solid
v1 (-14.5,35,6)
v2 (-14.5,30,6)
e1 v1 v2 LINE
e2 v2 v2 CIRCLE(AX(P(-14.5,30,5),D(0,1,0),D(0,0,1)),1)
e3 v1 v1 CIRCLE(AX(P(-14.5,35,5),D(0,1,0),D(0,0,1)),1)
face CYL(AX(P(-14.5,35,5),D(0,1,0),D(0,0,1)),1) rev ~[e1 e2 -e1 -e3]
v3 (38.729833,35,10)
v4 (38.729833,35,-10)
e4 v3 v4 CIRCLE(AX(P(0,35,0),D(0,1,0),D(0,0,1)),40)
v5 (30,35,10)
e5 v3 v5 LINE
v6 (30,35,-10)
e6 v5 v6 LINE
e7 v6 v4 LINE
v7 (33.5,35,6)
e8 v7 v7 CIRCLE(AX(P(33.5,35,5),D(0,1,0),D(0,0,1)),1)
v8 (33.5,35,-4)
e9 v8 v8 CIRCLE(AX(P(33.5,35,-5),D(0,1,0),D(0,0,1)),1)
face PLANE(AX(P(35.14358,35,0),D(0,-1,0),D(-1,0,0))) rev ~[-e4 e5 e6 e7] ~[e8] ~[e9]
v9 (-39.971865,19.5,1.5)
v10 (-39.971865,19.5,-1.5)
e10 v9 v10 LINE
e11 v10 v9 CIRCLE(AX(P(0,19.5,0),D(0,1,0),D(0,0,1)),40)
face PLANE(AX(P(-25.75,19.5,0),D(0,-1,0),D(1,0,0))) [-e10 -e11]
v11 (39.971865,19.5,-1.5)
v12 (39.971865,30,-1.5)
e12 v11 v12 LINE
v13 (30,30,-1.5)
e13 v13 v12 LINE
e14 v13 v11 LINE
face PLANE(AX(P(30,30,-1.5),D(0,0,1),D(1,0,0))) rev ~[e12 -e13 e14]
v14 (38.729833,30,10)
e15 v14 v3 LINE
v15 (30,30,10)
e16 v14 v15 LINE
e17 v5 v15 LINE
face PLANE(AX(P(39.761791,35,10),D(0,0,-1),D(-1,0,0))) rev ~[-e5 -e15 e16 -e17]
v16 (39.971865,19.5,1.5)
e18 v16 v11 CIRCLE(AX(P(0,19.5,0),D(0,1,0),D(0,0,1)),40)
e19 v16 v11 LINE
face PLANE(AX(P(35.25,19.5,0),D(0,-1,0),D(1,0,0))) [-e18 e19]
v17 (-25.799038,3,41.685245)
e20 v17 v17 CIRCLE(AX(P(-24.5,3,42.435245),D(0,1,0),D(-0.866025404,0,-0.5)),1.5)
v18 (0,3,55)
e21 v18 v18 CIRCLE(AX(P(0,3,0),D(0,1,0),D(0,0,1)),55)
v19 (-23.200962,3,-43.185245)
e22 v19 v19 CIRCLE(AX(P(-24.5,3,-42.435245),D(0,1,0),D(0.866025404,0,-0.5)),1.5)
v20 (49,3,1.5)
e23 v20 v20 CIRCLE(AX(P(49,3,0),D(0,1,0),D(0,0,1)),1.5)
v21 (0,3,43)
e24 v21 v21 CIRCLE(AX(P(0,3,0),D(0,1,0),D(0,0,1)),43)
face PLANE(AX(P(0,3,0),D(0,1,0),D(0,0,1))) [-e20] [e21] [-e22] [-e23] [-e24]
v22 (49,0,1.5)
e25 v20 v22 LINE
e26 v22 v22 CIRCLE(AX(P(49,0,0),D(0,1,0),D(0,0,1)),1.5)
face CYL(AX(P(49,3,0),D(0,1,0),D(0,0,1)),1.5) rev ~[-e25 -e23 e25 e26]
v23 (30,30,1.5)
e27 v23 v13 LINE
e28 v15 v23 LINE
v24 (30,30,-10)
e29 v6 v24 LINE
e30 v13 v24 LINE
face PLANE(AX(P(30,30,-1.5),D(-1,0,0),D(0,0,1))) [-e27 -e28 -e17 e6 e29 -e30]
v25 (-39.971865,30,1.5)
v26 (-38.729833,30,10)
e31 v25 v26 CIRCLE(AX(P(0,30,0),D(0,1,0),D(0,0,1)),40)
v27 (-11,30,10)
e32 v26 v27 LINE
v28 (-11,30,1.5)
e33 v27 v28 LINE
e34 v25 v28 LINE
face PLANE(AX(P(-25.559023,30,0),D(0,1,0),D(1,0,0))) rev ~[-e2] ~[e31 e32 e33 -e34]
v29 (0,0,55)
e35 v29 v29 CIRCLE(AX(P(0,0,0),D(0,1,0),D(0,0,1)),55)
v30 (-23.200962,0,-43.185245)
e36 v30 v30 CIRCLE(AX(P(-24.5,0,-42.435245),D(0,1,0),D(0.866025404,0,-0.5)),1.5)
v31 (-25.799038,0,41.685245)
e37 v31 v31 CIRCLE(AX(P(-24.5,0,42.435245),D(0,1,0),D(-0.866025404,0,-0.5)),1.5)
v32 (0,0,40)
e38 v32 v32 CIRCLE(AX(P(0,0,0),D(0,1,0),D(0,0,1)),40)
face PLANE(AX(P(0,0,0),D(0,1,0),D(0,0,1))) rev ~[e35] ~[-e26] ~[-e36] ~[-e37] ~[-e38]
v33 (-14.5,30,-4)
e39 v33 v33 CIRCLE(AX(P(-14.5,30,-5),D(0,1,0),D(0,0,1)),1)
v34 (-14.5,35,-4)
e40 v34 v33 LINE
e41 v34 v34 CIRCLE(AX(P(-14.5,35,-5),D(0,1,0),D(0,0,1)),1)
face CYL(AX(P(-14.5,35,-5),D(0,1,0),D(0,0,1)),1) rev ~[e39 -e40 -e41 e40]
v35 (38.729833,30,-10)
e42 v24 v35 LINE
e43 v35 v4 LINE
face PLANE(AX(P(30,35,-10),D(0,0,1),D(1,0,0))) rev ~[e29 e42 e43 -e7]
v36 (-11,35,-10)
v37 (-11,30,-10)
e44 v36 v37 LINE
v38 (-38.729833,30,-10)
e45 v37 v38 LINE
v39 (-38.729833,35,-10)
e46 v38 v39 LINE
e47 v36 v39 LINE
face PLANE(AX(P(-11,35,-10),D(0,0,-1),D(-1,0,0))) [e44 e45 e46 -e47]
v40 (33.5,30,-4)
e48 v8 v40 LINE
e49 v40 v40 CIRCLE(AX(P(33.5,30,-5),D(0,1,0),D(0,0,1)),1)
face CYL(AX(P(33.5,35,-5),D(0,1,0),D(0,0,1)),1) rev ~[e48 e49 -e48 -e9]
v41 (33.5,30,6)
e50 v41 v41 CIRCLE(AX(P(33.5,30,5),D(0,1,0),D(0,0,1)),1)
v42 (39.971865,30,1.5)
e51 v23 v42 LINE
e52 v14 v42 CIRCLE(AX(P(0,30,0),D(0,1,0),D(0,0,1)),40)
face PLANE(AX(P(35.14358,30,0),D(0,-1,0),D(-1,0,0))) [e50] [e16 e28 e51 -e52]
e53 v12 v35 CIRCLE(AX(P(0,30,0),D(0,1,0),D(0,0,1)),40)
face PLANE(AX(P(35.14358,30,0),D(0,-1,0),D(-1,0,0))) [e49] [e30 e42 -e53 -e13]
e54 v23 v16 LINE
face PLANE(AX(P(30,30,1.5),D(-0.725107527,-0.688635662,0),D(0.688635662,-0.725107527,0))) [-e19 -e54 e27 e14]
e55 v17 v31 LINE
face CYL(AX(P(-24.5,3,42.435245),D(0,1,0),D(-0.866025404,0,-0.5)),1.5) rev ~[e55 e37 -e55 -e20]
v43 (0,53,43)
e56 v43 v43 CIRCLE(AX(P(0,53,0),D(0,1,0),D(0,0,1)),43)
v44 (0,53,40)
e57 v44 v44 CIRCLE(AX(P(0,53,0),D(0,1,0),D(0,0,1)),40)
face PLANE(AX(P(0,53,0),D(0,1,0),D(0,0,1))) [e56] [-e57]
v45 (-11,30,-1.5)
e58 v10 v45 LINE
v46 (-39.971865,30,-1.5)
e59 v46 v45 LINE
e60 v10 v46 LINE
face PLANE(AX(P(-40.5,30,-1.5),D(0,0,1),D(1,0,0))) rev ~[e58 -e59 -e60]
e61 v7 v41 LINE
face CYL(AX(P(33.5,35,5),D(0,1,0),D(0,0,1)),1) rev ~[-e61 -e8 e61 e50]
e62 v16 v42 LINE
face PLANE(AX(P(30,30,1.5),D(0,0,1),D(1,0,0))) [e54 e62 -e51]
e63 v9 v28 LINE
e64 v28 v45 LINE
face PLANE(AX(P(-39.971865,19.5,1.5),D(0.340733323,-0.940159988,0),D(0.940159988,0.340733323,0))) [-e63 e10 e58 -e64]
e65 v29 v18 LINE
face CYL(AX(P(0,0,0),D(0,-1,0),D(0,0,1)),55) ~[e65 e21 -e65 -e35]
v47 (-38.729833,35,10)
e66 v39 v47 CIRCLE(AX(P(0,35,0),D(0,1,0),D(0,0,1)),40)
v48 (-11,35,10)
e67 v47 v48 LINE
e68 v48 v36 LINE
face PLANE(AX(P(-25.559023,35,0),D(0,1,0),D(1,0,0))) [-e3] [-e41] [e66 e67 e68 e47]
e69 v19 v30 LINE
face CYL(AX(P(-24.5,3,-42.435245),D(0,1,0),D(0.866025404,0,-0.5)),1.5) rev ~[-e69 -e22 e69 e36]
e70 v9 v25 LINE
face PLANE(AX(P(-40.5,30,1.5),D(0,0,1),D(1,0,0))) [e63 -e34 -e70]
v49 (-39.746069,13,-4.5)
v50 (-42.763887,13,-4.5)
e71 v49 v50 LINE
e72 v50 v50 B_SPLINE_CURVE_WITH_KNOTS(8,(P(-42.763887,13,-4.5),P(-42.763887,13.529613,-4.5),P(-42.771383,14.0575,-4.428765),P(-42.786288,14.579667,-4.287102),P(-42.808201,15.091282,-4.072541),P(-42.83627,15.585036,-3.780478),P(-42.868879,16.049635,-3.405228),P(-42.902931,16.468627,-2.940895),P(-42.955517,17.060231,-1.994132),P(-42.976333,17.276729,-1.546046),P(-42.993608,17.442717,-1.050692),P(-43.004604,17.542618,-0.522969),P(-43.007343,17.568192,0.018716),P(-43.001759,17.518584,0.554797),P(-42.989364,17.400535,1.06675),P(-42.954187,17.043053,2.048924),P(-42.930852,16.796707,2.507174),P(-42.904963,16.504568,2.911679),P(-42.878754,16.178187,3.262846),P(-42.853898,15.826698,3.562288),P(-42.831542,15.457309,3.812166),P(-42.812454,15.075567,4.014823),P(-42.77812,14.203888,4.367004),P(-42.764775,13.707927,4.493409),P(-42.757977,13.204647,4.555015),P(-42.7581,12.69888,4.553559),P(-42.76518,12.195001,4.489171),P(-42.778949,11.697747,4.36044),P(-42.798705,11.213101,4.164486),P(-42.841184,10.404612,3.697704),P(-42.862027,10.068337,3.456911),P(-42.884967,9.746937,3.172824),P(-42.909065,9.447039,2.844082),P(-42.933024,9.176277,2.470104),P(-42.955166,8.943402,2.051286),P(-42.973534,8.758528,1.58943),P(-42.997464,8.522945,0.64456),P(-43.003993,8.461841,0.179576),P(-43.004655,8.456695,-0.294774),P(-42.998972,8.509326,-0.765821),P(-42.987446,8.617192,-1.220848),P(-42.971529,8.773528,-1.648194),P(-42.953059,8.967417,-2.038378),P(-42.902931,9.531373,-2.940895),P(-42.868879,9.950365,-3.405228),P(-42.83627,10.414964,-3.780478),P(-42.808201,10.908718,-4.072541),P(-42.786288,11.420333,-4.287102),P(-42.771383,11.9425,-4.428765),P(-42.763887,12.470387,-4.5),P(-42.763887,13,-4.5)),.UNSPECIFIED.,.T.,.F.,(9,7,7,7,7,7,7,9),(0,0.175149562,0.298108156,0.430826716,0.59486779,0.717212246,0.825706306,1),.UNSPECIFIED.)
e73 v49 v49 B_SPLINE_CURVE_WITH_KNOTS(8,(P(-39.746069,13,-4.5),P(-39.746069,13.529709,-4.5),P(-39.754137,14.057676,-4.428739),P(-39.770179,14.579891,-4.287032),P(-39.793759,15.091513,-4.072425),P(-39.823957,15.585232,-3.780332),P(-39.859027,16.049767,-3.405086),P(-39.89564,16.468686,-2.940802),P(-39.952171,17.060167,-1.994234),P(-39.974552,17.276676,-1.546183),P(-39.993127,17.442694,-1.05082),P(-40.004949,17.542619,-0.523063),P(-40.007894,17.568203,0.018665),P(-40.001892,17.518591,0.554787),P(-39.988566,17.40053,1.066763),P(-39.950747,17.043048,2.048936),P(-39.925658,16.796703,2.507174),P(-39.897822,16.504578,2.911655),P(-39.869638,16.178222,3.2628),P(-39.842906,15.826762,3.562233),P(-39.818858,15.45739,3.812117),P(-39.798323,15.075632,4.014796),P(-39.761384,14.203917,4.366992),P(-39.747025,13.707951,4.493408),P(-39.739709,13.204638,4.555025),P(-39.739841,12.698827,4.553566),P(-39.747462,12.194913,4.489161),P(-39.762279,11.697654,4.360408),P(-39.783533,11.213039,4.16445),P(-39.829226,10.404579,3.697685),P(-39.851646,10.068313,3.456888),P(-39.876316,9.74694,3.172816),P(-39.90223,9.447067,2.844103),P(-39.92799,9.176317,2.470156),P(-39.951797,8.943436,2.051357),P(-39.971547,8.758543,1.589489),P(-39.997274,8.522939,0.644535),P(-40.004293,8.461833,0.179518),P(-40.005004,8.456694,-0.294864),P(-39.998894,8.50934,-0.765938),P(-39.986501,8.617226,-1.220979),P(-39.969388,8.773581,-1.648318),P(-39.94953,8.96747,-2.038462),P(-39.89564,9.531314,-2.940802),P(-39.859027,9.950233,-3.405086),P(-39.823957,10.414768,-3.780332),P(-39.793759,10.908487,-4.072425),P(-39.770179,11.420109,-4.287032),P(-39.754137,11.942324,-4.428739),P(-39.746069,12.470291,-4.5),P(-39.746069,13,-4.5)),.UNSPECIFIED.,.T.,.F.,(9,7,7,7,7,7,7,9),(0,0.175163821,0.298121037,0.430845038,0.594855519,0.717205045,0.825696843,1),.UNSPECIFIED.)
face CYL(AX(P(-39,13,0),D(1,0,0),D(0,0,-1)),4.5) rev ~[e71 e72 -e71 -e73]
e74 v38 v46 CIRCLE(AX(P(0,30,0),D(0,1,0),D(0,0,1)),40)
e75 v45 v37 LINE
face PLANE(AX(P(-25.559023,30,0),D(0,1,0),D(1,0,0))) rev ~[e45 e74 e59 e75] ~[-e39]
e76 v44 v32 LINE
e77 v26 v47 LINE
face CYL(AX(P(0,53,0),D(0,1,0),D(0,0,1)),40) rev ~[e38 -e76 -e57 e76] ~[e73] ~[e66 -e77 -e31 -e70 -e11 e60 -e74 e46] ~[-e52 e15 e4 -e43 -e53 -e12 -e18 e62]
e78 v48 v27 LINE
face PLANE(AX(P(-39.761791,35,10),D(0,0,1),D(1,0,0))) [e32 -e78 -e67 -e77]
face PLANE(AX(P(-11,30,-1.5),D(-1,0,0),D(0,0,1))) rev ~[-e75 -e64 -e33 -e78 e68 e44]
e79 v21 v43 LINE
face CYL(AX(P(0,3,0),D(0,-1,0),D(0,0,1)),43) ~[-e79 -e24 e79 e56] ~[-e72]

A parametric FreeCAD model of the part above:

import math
import FreeCAD as App
import Part
import Sketcher
Q = App.Units.Quantity

doc = App.newDocument("Part")
body = doc.addObject("PartDesign::Body", "Body")

sketch1 = body.newObject("Sketcher::SketchObject", "Sketch")
sketch1.AttachmentSupport = (doc.getObject("XZ_Plane"), [""])
sketch1.MapMode = "FlatFace"
sketch1.addGeometry(Part.Circle(App.Vector(0, 0, 0), App.Vector(0, 0, 1), 55), False)
sketch1.addConstraint(Sketcher.Constraint("Coincident", 0, 3, -1, 1))
sketch1.addConstraint(Sketcher.Constraint("Diameter", 0, Q("110 mm")))
pad1 = body.newObject("PartDesign::Pad", "Pad")
pad1.Profile = sketch1
pad1.Length = 3
pad1.Reversed = True

sketch2 = body.newObject("Sketcher::SketchObject", "Sketch001")
sketch2.AttachmentSupport = (doc.getObject("XZ_Plane"), [""])
sketch2.MapMode = "FlatFace"
sketch2.AttachmentOffset = App.Placement(App.Vector(0, 0, -3), App.Rotation())
sketch2.addGeometry(Part.Circle(App.Vector(0, 0, 0), App.Vector(0, 0, 1), 43), False)
sketch2.addConstraint(Sketcher.Constraint("Coincident", 0, 3, -1, 1))
sketch2.addConstraint(Sketcher.Constraint("Diameter", 0, Q("86 mm")))
pad2 = body.newObject("PartDesign::Pad", "Pad001")
pad2.Profile = sketch2
pad2.Length = 50
pad2.Reversed = True

sketch3 = body.newObject("Sketcher::SketchObject", "Sketch002")
sketch3.AttachmentSupport = (doc.getObject("XZ_Plane"), [""])
sketch3.MapMode = "FlatFace"
sketch3.AttachmentOffset = App.Placement(App.Vector(0, 0, -53), App.Rotation())
sketch3.addGeometry(Part.Circle(App.Vector(0, 0, 0), App.Vector(0, 0, 1), 40), False)
sketch3.addConstraint(Sketcher.Constraint("Coincident", 0, 3, -1, 1))
sketch3.addConstraint(Sketcher.Constraint("Diameter", 0, Q("80 mm")))
pocket1 = body.newObject("PartDesign::Pocket", "Pocket")
pocket1.Profile = sketch3
pocket1.Length = 66
pocket1.Reversed = True

sketch4 = body.newObject("Sketcher::SketchObject", "Sketch003")
sketch4.AttachmentSupport = (doc.getObject("YZ_Plane"), [""])
sketch4.MapMode = "FlatFace"
sketch4.AttachmentOffset = App.Placement(App.Vector(0, 0, -39), App.Rotation())
sketch4.addGeometry(Part.Circle(App.Vector(13, 0, 0), App.Vector(0, 0, 1), 4.5), False)
sketch4.addConstraint(Sketcher.Constraint("PointOnObject", 0, 3, -1))
sketch4.addConstraint(Sketcher.Constraint("Diameter", 0, Q("9 mm")))
sketch4.addConstraint(Sketcher.Constraint("DistanceX", -1, 1, 0, 3, Q("13 mm")))
pocket2 = body.newObject("PartDesign::Pocket", "Pocket001")
pocket2.Profile = sketch4
pocket2.Length = 9

sketch5 = body.newObject("Sketcher::SketchObject", "Sketch004")
sketch5.AttachmentSupport = (doc.getObject("XZ_Plane"), [""])
sketch5.MapMode = "FlatFace"
sketch5.AttachmentOffset = App.Placement(App.Vector(0, 0, -35), App.Rotation())
sketch5.addGeometry(Part.LineSegment(App.Vector(-11, -10, 0), App.Vector(-40, -10, 0)), False)
sketch5.addGeometry(Part.ArcOfCircle(Part.Circle(App.Vector(0, 0, 0), App.Vector(0, 0, 1), 41), math.radians(166), math.radians(194)), False)
sketch5.addGeometry(Part.LineSegment(App.Vector(-40, 10, 0), App.Vector(-11, 10, 0)), False)
sketch5.addGeometry(Part.LineSegment(App.Vector(-11, 10, 0), App.Vector(-11, -10, 0)), False)
sketch5.addGeometry(Part.LineSegment(App.Vector(40, -10, 0), App.Vector(30, -10, 0)), False)
sketch5.addGeometry(Part.LineSegment(App.Vector(30, -10, 0), App.Vector(30, 10, 0)), False)
sketch5.addGeometry(Part.LineSegment(App.Vector(30, 10, 0), App.Vector(40, 10, 0)), False)
sketch5.addGeometry(Part.ArcOfCircle(Part.Circle(App.Vector(0, 0, 0), App.Vector(0, 0, 1), 41), math.radians(-14), math.radians(14)), False)
sketch5.addConstraint(Sketcher.Constraint("Coincident", 0, 2, 1, 2))
sketch5.addConstraint(Sketcher.Constraint("Coincident", 1, 1, 2, 1))
sketch5.addConstraint(Sketcher.Constraint("Coincident", 2, 2, 3, 1))
sketch5.addConstraint(Sketcher.Constraint("Coincident", 3, 2, 0, 1))
sketch5.addConstraint(Sketcher.Constraint("Coincident", 4, 2, 5, 1))
sketch5.addConstraint(Sketcher.Constraint("Coincident", 5, 2, 6, 1))
sketch5.addConstraint(Sketcher.Constraint("Coincident", 6, 2, 7, 2))
sketch5.addConstraint(Sketcher.Constraint("Coincident", 7, 1, 4, 1))
sketch5.addConstraint(Sketcher.Constraint("Horizontal", 0))
sketch5.addConstraint(Sketcher.Constraint("Horizontal", 2))
sketch5.addConstraint(Sketcher.Constraint("Vertical", 3))
sketch5.addConstraint(Sketcher.Constraint("Horizontal", 4))
sketch5.addConstraint(Sketcher.Constraint("Vertical", 5))
sketch5.addConstraint(Sketcher.Constraint("Horizontal", 6))
sketch5.addConstraint(Sketcher.Constraint("Coincident", 1, 3, -1, 1))
sketch5.addConstraint(Sketcher.Constraint("Coincident", 7, 3, -1, 1))
sketch5.addConstraint(Sketcher.Constraint("Equal", 1, 7))
sketch5.addConstraint(Sketcher.Constraint("Horizontal", 3, 2, 4, 2))
sketch5.addConstraint(Sketcher.Constraint("Horizontal", 2, 2, 5, 2))
sketch5.addConstraint(Sketcher.Constraint("Vertical", 0, 2, 1, 1))
sketch5.addConstraint(Sketcher.Constraint("Radius", 1, Q("41 mm")))
sketch5.addConstraint(Sketcher.Constraint("DistanceY", 3, 2, 3, 1, Q("20 mm")))
sketch5.addConstraint(Sketcher.Constraint("DistanceX", 2, 2, -1, 1, Q("11 mm")))
sketch5.addConstraint(Sketcher.Constraint("DistanceX", -1, 1, 4, 2, Q("30 mm")))
pad3 = body.newObject("PartDesign::Pad", "Pad002")
pad3.Profile = sketch5
pad3.Length = 5

sketch6 = body.newObject("Sketcher::SketchObject", "Sketch005")
sketch6.AttachmentSupport = (doc.getObject("XZ_Plane"), [""])
sketch6.MapMode = "FlatFace"
sketch6.AttachmentOffset = App.Placement(App.Vector(0, 0, -30), App.Rotation())
sketch6.addGeometry(Part.LineSegment(App.Vector(30, 1.5, 0), App.Vector(30, -1.5, 0)), False)
sketch6.addGeometry(Part.LineSegment(App.Vector(30, -1.5, 0), App.Vector(40.5, -1.5, 0)), False)
sketch6.addGeometry(Part.LineSegment(App.Vector(40.5, -1.5, 0), App.Vector(40.5, 1.5, 0)), False)
sketch6.addGeometry(Part.LineSegment(App.Vector(40.5, 1.5, 0), App.Vector(30, 1.5, 0)), False)
sketch6.addConstraint(Sketcher.Constraint("Coincident", 0, 2, 1, 1))
sketch6.addConstraint(Sketcher.Constraint("Coincident", 1, 2, 2, 1))
sketch6.addConstraint(Sketcher.Constraint("Coincident", 2, 2, 3, 1))
sketch6.addConstraint(Sketcher.Constraint("Coincident", 3, 2, 0, 1))
sketch6.addConstraint(Sketcher.Constraint("Vertical", 0))
sketch6.addConstraint(Sketcher.Constraint("Horizontal", 1))
sketch6.addConstraint(Sketcher.Constraint("Vertical", 2))
sketch6.addConstraint(Sketcher.Constraint("Horizontal", 3))
sketch6.addConstraint(Sketcher.Constraint("DistanceY", 0, 2, 0, 1, Q("3 mm")))
sketch6.addConstraint(Sketcher.Constraint("DistanceX", 1, 1, 1, 2, Q("10.5 mm")))
sketch6.addConstraint(Sketcher.Constraint("DistanceX", -1, 1, 0, 2, Q("30 mm")))
sketch6.addConstraint(Sketcher.Constraint("DistanceY", 0, 2, -1, 1, Q("1.5 mm")))
pad4 = body.newObject("PartDesign::Pad", "Pad003")
pad4.Profile = sketch6
pad4.Length = 10.5

sketch7 = body.newObject("Sketcher::SketchObject", "Sketch006")
sketch7.AttachmentSupport = (doc.getObject("XY_Plane"), [""])
sketch7.MapMode = "FlatFace"
sketch7.AttachmentOffset = App.Placement(App.Vector(0, 0, 1.5), App.Rotation())
sketch7.addGeometry(Part.LineSegment(App.Vector(40, 20, 0), App.Vector(30, 30, 0)), False)
sketch7.addGeometry(Part.LineSegment(App.Vector(30, 30, 0), App.Vector(30, 20, 0)), False)
sketch7.addGeometry(Part.LineSegment(App.Vector(30, 20, 0), App.Vector(40, 20, 0)), False)
sketch7.addConstraint(Sketcher.Constraint("Coincident", 0, 2, 1, 1))
sketch7.addConstraint(Sketcher.Constraint("Coincident", 1, 2, 2, 1))
sketch7.addConstraint(Sketcher.Constraint("Coincident", 2, 2, 0, 1))
sketch7.addConstraint(Sketcher.Constraint("Vertical", 1))
sketch7.addConstraint(Sketcher.Constraint("Horizontal", 2))
sketch7.addConstraint(Sketcher.Constraint("DistanceY", 1, 2, 1, 1, Q("10.5 mm")))
sketch7.addConstraint(Sketcher.Constraint("DistanceX", -1, 1, 0, 2, Q("30 mm")))
sketch7.addConstraint(Sketcher.Constraint("DistanceY", -1, 1, 0, 2, Q("30 mm")))
sketch7.addConstraint(Sketcher.Constraint("Distance", 0, Q("14.480611 mm")))
pocket3 = body.newObject("PartDesign::Pocket", "Pocket002")
pocket3.Profile = sketch7
pocket3.Length = 3

sketch8 = body.newObject("Sketcher::SketchObject", "Sketch007")
sketch8.AttachmentSupport = (doc.getObject("XZ_Plane"), [""])
sketch8.MapMode = "FlatFace"
sketch8.AttachmentOffset = App.Placement(App.Vector(0, 0, -30), App.Rotation())
sketch8.addGeometry(Part.LineSegment(App.Vector(-40.5, 1.5, 0), App.Vector(-40.5, -1.5, 0)), False)
sketch8.addGeometry(Part.LineSegment(App.Vector(-40.5, -1.5, 0), App.Vector(-11, -1.5, 0)), False)
sketch8.addGeometry(Part.LineSegment(App.Vector(-11, -1.5, 0), App.Vector(-11, 1.5, 0)), False)
sketch8.addGeometry(Part.LineSegment(App.Vector(-11, 1.5, 0), App.Vector(-40.5, 1.5, 0)), False)
sketch8.addConstraint(Sketcher.Constraint("Coincident", 0, 2, 1, 1))
sketch8.addConstraint(Sketcher.Constraint("Coincident", 1, 2, 2, 1))
sketch8.addConstraint(Sketcher.Constraint("Coincident", 2, 2, 3, 1))
sketch8.addConstraint(Sketcher.Constraint("Coincident", 3, 2, 0, 1))
sketch8.addConstraint(Sketcher.Constraint("Vertical", 0))
sketch8.addConstraint(Sketcher.Constraint("Horizontal", 1))
sketch8.addConstraint(Sketcher.Constraint("Vertical", 2))
sketch8.addConstraint(Sketcher.Constraint("Horizontal", 3))
sketch8.addConstraint(Sketcher.Constraint("DistanceY", 0, 2, 0, 1, Q("3 mm")))
sketch8.addConstraint(Sketcher.Constraint("DistanceX", 1, 1, 1, 2, Q("29.5 mm")))
sketch8.addConstraint(Sketcher.Constraint("DistanceX", 1, 2, -1, 1, Q("11 mm")))
sketch8.addConstraint(Sketcher.Constraint("DistanceY", 0, 2, -1, 1, Q("1.5 mm")))
pad5 = body.newObject("PartDesign::Pad", "Pad004")
pad5.Profile = sketch8
pad5.Length = 10.5

sketch9 = body.newObject("Sketcher::SketchObject", "Sketch008")
sketch9.AttachmentSupport = (doc.getObject("XY_Plane"), [""])
sketch9.MapMode = "FlatFace"
sketch9.AttachmentOffset = App.Placement(App.Vector(0, 0, 1.5), App.Rotation())
sketch9.addGeometry(Part.LineSegment(App.Vector(-11, 30, 0), App.Vector(-40, 20, 0)), False)
sketch9.addGeometry(Part.LineSegment(App.Vector(-40, 20, 0), App.Vector(-11, 20, 0)), False)
sketch9.addGeometry(Part.LineSegment(App.Vector(-11, 20, 0), App.Vector(-11, 30, 0)), False)
sketch9.addConstraint(Sketcher.Constraint("Coincident", 0, 2, 1, 1))
sketch9.addConstraint(Sketcher.Constraint("Coincident", 1, 2, 2, 1))
sketch9.addConstraint(Sketcher.Constraint("Coincident", 2, 2, 0, 1))
sketch9.addConstraint(Sketcher.Constraint("Horizontal", 1))
sketch9.addConstraint(Sketcher.Constraint("Vertical", 2))
sketch9.addConstraint(Sketcher.Constraint("DistanceY", 2, 1, 2, 2, Q("10.5 mm")))
sketch9.addConstraint(Sketcher.Constraint("DistanceX", 1, 2, -1, 1, Q("11 mm")))
sketch9.addConstraint(Sketcher.Constraint("DistanceY", -1, 1, 2, 2, Q("30 mm")))
sketch9.addConstraint(Sketcher.Constraint("Distance", 0, Q("30.815888 mm")))
pocket4 = body.newObject("PartDesign::Pocket", "Pocket003")
pocket4.Profile = sketch9
pocket4.Length = 3

sketch10 = body.newObject("Sketcher::SketchObject", "Sketch009")
sketch10.AttachmentSupport = (doc.getObject("XZ_Plane"), [""])
sketch10.MapMode = "FlatFace"
sketch10.AttachmentOffset = App.Placement(App.Vector(0, 0, -3), App.Rotation())
sketch10.addGeometry(Part.Circle(App.Vector(49, 0, 0), App.Vector(0, 0, 1), 1.5), False)
sketch10.addConstraint(Sketcher.Constraint("PointOnObject", 0, 3, -1))
sketch10.addConstraint(Sketcher.Constraint("Diameter", 0, Q("3 mm")))
sketch10.addConstraint(Sketcher.Constraint("DistanceX", -1, 1, 0, 3, Q("49 mm")))
pocket5 = body.newObject("PartDesign::Pocket", "Pocket004")
pocket5.Profile = sketch10
pocket5.Length = 8
pocket5.Reversed = True
doc.recompute()

polarpattern = body.newObject("PartDesign::PolarPattern", "PolarPattern")
polarpattern.Originals = [pocket5]
polarpattern.Axis = (doc.getObject("Y_Axis"), [""])
polarpattern.Angle = 360
polarpattern.Occurrences = 3
body.Tip = polarpattern

sketch11 = body.newObject("Sketcher::SketchObject", "Sketch010")
sketch11.AttachmentSupport = (doc.getObject("XZ_Plane"), [""])
sketch11.MapMode = "FlatFace"
sketch11.AttachmentOffset = App.Placement(App.Vector(0, 0, -35), App.Rotation())
sketch11.addGeometry(Part.Circle(App.Vector(-14.5, -5, 0), App.Vector(0, 0, 1), 1), False)
sketch11.addGeometry(Part.Circle(App.Vector(-14.5, 5, 0), App.Vector(0, 0, 1), 1), False)
sketch11.addConstraint(Sketcher.Constraint("Equal", 0, 1))
sketch11.addConstraint(Sketcher.Constraint("Symmetric", 0, 3, 1, 3, -1))
sketch11.addConstraint(Sketcher.Constraint("Diameter", 0, Q("2 mm")))
sketch11.addConstraint(Sketcher.Constraint("DistanceY", 0, 3, -1, 1, Q("5 mm")))
sketch11.addConstraint(Sketcher.Constraint("DistanceX", 0, 3, -1, 1, Q("14.5 mm")))
pocket6 = body.newObject("PartDesign::Pocket", "Pocket005")
pocket6.Profile = sketch11
pocket6.Length = 9
pocket6.Reversed = True

sketch12 = body.newObject("Sketcher::SketchObject", "Sketch011")
sketch12.AttachmentSupport = (doc.getObject("XZ_Plane"), [""])
sketch12.MapMode = "FlatFace"
sketch12.AttachmentOffset = App.Placement(App.Vector(0, 0, -35), App.Rotation())
sketch12.addGeometry(Part.Circle(App.Vector(33.5, -5, 0), App.Vector(0, 0, 1), 1), False)
sketch12.addGeometry(Part.Circle(App.Vector(33.5, 5, 0), App.Vector(0, 0, 1), 1), False)
sketch12.addConstraint(Sketcher.Constraint("Equal", 0, 1))
sketch12.addConstraint(Sketcher.Constraint("Symmetric", 0, 3, 1, 3, -1))
sketch12.addConstraint(Sketcher.Constraint("Diameter", 0, Q("2 mm")))
sketch12.addConstraint(Sketcher.Constraint("DistanceY", 0, 3, -1, 1, Q("5 mm")))
sketch12.addConstraint(Sketcher.Constraint("DistanceX", -1, 1, 0, 3, Q("33.5 mm")))
pocket7 = body.newObject("PartDesign::Pocket", "Pocket006")
pocket7.Profile = sketch12
pocket7.Length = 9
pocket7.Reversed = True

doc.recompute()
